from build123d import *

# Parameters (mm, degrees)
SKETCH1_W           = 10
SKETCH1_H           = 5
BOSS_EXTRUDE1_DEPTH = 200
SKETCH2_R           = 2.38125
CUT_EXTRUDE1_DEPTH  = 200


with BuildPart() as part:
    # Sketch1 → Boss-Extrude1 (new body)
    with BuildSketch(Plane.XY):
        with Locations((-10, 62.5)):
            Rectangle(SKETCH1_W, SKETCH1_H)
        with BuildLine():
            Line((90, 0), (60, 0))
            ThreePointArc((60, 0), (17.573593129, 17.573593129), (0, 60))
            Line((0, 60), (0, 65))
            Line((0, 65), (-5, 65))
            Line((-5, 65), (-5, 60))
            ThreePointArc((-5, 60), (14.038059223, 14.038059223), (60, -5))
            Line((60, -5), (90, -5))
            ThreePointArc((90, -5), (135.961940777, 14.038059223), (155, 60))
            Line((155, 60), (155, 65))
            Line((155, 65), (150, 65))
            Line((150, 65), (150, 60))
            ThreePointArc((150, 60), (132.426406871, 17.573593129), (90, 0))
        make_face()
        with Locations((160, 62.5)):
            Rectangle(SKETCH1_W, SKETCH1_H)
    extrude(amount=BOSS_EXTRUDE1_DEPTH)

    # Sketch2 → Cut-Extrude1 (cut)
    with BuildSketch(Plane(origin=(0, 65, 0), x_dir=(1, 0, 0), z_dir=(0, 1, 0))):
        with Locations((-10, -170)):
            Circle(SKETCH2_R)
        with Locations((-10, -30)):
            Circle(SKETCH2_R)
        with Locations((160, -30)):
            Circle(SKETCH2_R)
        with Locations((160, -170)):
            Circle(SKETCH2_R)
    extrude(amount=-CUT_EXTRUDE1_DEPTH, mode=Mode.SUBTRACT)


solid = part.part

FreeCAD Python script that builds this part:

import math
import FreeCAD as App
import Part
import Sketcher
from FreeCAD import Vector
Q = App.Units.Quantity

doc = App.newDocument("Part")
body = doc.addObject("PartDesign::Body", "Body")

# Sketch on XY plane
sketch1 = body.newObject("Sketcher::SketchObject", "Sketch")
sketch1.AttachmentSupport = (doc.getObject("XY_Plane"), [""])
sketch1.MapMode = "FlatFace"
sketch1.addGeometry([
    Part.LineSegment(Vector(-15, 65, 0), Vector(-15, 60, 0)),  # 0
    Part.LineSegment(Vector(-15, 60, 0), Vector(-5, 60, 0)),  # 1
    Part.ArcOfCircle(Part.Circle(Vector(60, 60, 0), Vector(0, 0, 1), 65), math.radians(180), math.radians(270)),  # 2
    Part.LineSegment(Vector(60, -5, 0), Vector(90, -5, 0)),  # 3
    Part.ArcOfCircle(Part.Circle(Vector(90, 60, 0), Vector(0, 0, 1), 65), math.radians(-90), math.radians(0)),  # 4
    Part.LineSegment(Vector(155, 60, 0), Vector(165, 60, 0)),  # 5
    Part.LineSegment(Vector(165, 60, 0), Vector(165, 65, 0)),  # 6
    Part.LineSegment(Vector(165, 65, 0), Vector(150, 65, 0)),  # 7
    Part.LineSegment(Vector(150, 65, 0), Vector(150, 60, 0)),  # 8
    Part.ArcOfCircle(Part.Circle(Vector(90, 60, 0), Vector(0, 0, 1), 60), math.radians(-90), math.radians(0)),  # 9
    Part.LineSegment(Vector(90, 0, 0), Vector(60, 0, 0)),  # 10
    Part.ArcOfCircle(Part.Circle(Vector(60, 60, 0), Vector(0, 0, 1), 60), math.radians(-180), math.radians(-90)),  # 11
    Part.LineSegment(Vector(0, 60, 0), Vector(0, 65, 0)),  # 12
    Part.LineSegment(Vector(0, 65, 0), Vector(-15, 65, 0)),  # 13
], False)
sketch1.addConstraint([
    Sketcher.Constraint("Coincident", 0, 2, 1, 1),
    Sketcher.Constraint("Coincident", 1, 2, 2, 1),
    Sketcher.Constraint("Tangent", 2, 2, 3, 1),
    Sketcher.Constraint("Tangent", 3, 2, 4, 1),
    Sketcher.Constraint("Coincident", 4, 2, 5, 1),
    Sketcher.Constraint("Coincident", 5, 2, 6, 1),
    Sketcher.Constraint("Coincident", 6, 2, 7, 1),
    Sketcher.Constraint("Coincident", 7, 2, 8, 1),
    Sketcher.Constraint("Tangent", 8, 2, 9, 2),
    Sketcher.Constraint("Tangent", 9, 1, 10, 1),
    Sketcher.Constraint("Tangent", 10, 2, 11, 2),
    Sketcher.Constraint("Tangent", 11, 1, 12, 1),
    Sketcher.Constraint("Coincident", 12, 2, 13, 1),
    Sketcher.Constraint("Coincident", 13, 2, 0, 1),
    Sketcher.Constraint("Vertical", 0),
    Sketcher.Constraint("Horizontal", 1),
    Sketcher.Constraint("Horizontal", 3),
    Sketcher.Constraint("Horizontal", 5),
    Sketcher.Constraint("Vertical", 6),
    Sketcher.Constraint("Horizontal", 7),
    Sketcher.Constraint("Vertical", 8),
    Sketcher.Constraint("Horizontal", 10),
    Sketcher.Constraint("Vertical", 12),
    Sketcher.Constraint("Horizontal", 13),
    Sketcher.Constraint("Coincident", 9, 3, 4, 3),
    Sketcher.Constraint("Coincident", 11, 3, 2, 3),
    Sketcher.Constraint("Equal", 2, 4),
    Sketcher.Constraint("PointOnObject", 9, 1, -1),
    Sketcher.Constraint("PointOnObject", 11, 1, -2),
    Sketcher.Constraint("Horizontal", 11, 3, 0, 2),
    Sketcher.Constraint("Horizontal", 1, 2, 4, 2),
    Sketcher.Constraint("Horizontal", 7, 2, 12, 2),
    Sketcher.Constraint("Equal", 1, 5),
    Sketcher.Constraint("Radius", 2, Q("65 mm")),
    Sketcher.Constraint("Radius", 9, Q("60 mm")),
    Sketcher.Constraint("DistanceX", 1, 1, 1, 2, Q("10 mm")),
    Sketcher.Constraint("DistanceX", 3, 1, 3, 2, Q("30 mm")),
    Sketcher.Constraint("DistanceY", 0, 2, 0, 1, Q("5 mm")),
])
pad1 = body.newObject("PartDesign::Pad", "Pad")
pad1.Profile = sketch1
pad1.Length = 200

# Sketch on XZ plane
sketch2 = body.newObject("Sketcher::SketchObject", "Sketch001")
sketch2.AttachmentSupport = (doc.getObject("XZ_Plane"), [""])
sketch2.MapMode = "FlatFace"
sketch2.AttachmentOffset = App.Placement(Vector(0, 0, -65), App.Rotation())
sketch2.addGeometry([
    Part.Circle(Vector(-10, 170, 0), Vector(0, 0, 1), 2.4),
    Part.Circle(Vector(-10, 30, 0), Vector(0, 0, 1), 2.4),
    Part.Circle(Vector(160, 30, 0), Vector(0, 0, 1), 2.4),
    Part.Circle(Vector(160, 170, 0), Vector(0, 0, 1), 2.4),
], False)
sketch2.addConstraint([
    Sketcher.Constraint("Equal", 0, 1),
    Sketcher.Constraint("Equal", 1, 2),
    Sketcher.Constraint("Equal", 2, 3),
    Sketcher.Constraint("Horizontal", 1, 3, 2, 3),
    Sketcher.Constraint("Horizontal", 0, 3, 3, 3),
    Sketcher.Constraint("Vertical", 0, 3, 1, 3),
    Sketcher.Constraint("Vertical", 2, 3, 3, 3),
    Sketcher.Constraint("DistanceX", 0, 3, -1, 1, Q("10 mm")),
    Sketcher.Constraint("DistanceY", -1, 1, 0, 3, Q("170 mm")),
    Sketcher.Constraint("DistanceY", -1, 1, 1, 3, Q("30 mm")),
    Sketcher.Constraint("DistanceX", -1, 1, 2, 3, Q("160 mm")),
    Sketcher.Constraint("Diameter", 0, Q("4.7625 mm")),
])
pocket1 = body.newObject("PartDesign::Pocket", "Pocket")
pocket1.Profile = sketch2
pocket1.Length = 200
pocket1.Reversed = True

doc.recompute()
